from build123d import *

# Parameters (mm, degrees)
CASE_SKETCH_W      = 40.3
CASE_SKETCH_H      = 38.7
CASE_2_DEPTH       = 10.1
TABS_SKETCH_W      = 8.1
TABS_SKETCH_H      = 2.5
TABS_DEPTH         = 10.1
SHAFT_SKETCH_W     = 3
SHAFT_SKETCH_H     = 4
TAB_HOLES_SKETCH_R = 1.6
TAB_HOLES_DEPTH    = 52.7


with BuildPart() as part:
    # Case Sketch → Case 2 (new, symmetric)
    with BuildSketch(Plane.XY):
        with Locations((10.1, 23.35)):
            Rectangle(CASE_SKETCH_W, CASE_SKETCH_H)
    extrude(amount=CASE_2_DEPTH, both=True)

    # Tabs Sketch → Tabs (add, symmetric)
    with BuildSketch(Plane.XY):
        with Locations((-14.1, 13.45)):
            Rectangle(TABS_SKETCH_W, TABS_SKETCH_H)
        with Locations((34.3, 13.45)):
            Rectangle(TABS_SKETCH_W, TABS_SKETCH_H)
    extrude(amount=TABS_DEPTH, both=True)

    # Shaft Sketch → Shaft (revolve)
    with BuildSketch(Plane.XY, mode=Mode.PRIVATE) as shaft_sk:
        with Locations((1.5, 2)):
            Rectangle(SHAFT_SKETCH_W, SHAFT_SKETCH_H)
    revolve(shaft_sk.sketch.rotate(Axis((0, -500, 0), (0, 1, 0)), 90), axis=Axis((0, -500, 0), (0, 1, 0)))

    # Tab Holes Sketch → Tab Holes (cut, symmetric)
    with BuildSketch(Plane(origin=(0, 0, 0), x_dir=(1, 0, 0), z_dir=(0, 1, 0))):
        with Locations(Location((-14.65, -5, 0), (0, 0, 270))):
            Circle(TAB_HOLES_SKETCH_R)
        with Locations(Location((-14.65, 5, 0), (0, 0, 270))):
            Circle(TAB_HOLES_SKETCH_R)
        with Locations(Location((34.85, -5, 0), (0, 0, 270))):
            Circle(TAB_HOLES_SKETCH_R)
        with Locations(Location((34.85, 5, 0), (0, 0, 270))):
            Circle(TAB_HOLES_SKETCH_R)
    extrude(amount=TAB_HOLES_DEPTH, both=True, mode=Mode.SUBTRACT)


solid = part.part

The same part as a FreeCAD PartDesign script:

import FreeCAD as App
import Part
import Sketcher

V = App.Vector


def add_polygon(sketch, points):
    """Adds a closed chain of lines whose ends are joined by coincident constraints."""
    first, n = sketch.GeometryCount, len(points)
    for a, b in zip(points, points[1:] + points[:1]):
        sketch.addGeometry(Part.LineSegment(App.Vector(*a, 0), App.Vector(*b, 0)), False)
    for i in range(n):
        sketch.addConstraint(Sketcher.Constraint("Coincident", first + i, 2, first + (i + 1) % n, 1))

doc = App.newDocument("Part")
body = doc.addObject("PartDesign::Body", "Body")

# Sketch on XY plane
sketch1 = body.newObject("Sketcher::SketchObject", "Sketch")
sketch1.AttachmentSupport = (doc.getObject("XY_Plane"), [""])
sketch1.MapMode = "FlatFace"
add_polygon(sketch1, [(-10, 43), (-10, 4), (30, 4), (30, 43)])  # lines 0-3
sketch1.addConstraint([
    Sketcher.Constraint("Vertical", 0),
    Sketcher.Constraint("Horizontal", 1),
    Sketcher.Constraint("Vertical", 2),
    Sketcher.Constraint("Horizontal", 3),
    Sketcher.Constraint("DistanceX", 1, 1, 1, 2, 40.3),
    Sketcher.Constraint("DistanceY", 0, 2, 0, 1, 38.7),
    Sketcher.Constraint("DistanceY", -1, 1, 0, 2, 4.0),
    Sketcher.Constraint("DistanceX", 0, 2, -1, 1, 10.05),
])
pad1 = body.newObject("PartDesign::Pad", "Pad")
pad1.Profile = sketch1
pad1.Length = 20.2
pad1.Midplane = True

# Sketch on XY plane
sketch2 = body.newObject("Sketcher::SketchObject", "Sketch001")
sketch2.AttachmentSupport = (doc.getObject("XY_Plane"), [""])
sketch2.MapMode = "FlatFace"
add_polygon(sketch2, [(-18.1, 14.7), (-18.1, 12.2), (-10.1, 12.2), (-10.1, 14.7)])  # lines 0-3
add_polygon(sketch2, [(30.2, 14.7), (30.2, 12.2), (38.4, 12.2), (38.4, 14.7)])  # lines 4-7
sketch2.addConstraint([
    Sketcher.Constraint("Vertical", 0),
    Sketcher.Constraint("Horizontal", 1),
    Sketcher.Constraint("Vertical", 2),
    Sketcher.Constraint("Horizontal", 3),
    Sketcher.Constraint("Vertical", 4),
    Sketcher.Constraint("Horizontal", 5),
    Sketcher.Constraint("Vertical", 6),
    Sketcher.Constraint("Horizontal", 7),
    Sketcher.Constraint("Horizontal", 1, 2, 4, 2),
    Sketcher.Constraint("Horizontal", 3, 2, 6, 2),
    Sketcher.Constraint("Equal", 3, 5),
    Sketcher.Constraint("DistanceX", 1, 1, 1, 2, 8.1),
    Sketcher.Constraint("DistanceY", 0, 2, 0, 1, 2.5),
    Sketcher.Constraint("DistanceY", -1, 1, 0, 2, 12.2),
    Sketcher.Constraint("DistanceX", 1, 2, 4, 2, 40.3),
    Sketcher.Constraint("DistanceX", 0, 2, -1, 1, 18.15),
])
pad2 = body.newObject("PartDesign::Pad", "Pad001")
pad2.Profile = sketch2
pad2.Length = 20.2
pad2.Midplane = True

# Sketch on XY plane
sketch3 = body.newObject("Sketcher::SketchObject", "Sketch002")
sketch3.AttachmentSupport = (doc.getObject("XY_Plane"), [""])
sketch3.MapMode = "FlatFace"
add_polygon(sketch3, [(0, 4), (0, 0), (3, 0), (3, 4)])  # lines 0-3
sketch3.addConstraint([
    Sketcher.Constraint("Vertical", 0),
    Sketcher.Constraint("Horizontal", 1),
    Sketcher.Constraint("Vertical", 2),
    Sketcher.Constraint("Horizontal", 3),
    Sketcher.Constraint("Coincident", 0, 2, -1, 1),
    Sketcher.Constraint("DistanceX", 1, 1, 1, 2, 3.0),
    Sketcher.Constraint("DistanceY", 0, 2, 0, 1, 4.0),
])
revolution = body.newObject("PartDesign::Revolution", "Revolution")
revolution.Profile = sketch3
revolution.ReferenceAxis = (sketch3, ["V_Axis"])
revolution.Angle = 360

# Sketch on XZ plane
sketch4 = body.newObject("Sketcher::SketchObject", "Sketch003")
sketch4.AttachmentSupport = (doc.getObject("XZ_Plane"), [""])
sketch4.MapMode = "FlatFace"
sketch4.addGeometry([
    Part.Circle(V(-14.7, 5, 0), V(0, 0, 1), 1.6),
    Part.Circle(V(-14.7, -5, 0), V(0, 0, 1), 1.6),
    Part.Circle(V(34.9, 5, 0), V(0, 0, 1), 1.6),
    Part.Circle(V(34.9, -5, 0), V(0, 0, 1), 1.6),
], False)
sketch4.addConstraint([
    Sketcher.Constraint("Equal", 0, 1),
    Sketcher.Constraint("Equal", 1, 2),
    Sketcher.Constraint("Equal", 2, 3),
    Sketcher.Constraint("Symmetric", 0, 3, 1, 3, -1),
    Sketcher.Constraint("Symmetric", 2, 3, 3, 3, -1),
    Sketcher.Constraint("Horizontal", 0, 3, 2, 3),
    Sketcher.Constraint("Diameter", 0, 3.2),
    Sketcher.Constraint("DistanceY", -1, 1, 0, 3, 5.0),
    Sketcher.Constraint("DistanceX", 0, 3, 2, 3, 49.5),
    Sketcher.Constraint("DistanceX", 0, 3, -1, 1, 14.65),
])
pocket1 = body.newObject("PartDesign::Pocket", "Pocket")
pocket1.Profile = sketch4
pocket1.Length = 105.4
pocket1.Midplane = True

doc.recompute()
